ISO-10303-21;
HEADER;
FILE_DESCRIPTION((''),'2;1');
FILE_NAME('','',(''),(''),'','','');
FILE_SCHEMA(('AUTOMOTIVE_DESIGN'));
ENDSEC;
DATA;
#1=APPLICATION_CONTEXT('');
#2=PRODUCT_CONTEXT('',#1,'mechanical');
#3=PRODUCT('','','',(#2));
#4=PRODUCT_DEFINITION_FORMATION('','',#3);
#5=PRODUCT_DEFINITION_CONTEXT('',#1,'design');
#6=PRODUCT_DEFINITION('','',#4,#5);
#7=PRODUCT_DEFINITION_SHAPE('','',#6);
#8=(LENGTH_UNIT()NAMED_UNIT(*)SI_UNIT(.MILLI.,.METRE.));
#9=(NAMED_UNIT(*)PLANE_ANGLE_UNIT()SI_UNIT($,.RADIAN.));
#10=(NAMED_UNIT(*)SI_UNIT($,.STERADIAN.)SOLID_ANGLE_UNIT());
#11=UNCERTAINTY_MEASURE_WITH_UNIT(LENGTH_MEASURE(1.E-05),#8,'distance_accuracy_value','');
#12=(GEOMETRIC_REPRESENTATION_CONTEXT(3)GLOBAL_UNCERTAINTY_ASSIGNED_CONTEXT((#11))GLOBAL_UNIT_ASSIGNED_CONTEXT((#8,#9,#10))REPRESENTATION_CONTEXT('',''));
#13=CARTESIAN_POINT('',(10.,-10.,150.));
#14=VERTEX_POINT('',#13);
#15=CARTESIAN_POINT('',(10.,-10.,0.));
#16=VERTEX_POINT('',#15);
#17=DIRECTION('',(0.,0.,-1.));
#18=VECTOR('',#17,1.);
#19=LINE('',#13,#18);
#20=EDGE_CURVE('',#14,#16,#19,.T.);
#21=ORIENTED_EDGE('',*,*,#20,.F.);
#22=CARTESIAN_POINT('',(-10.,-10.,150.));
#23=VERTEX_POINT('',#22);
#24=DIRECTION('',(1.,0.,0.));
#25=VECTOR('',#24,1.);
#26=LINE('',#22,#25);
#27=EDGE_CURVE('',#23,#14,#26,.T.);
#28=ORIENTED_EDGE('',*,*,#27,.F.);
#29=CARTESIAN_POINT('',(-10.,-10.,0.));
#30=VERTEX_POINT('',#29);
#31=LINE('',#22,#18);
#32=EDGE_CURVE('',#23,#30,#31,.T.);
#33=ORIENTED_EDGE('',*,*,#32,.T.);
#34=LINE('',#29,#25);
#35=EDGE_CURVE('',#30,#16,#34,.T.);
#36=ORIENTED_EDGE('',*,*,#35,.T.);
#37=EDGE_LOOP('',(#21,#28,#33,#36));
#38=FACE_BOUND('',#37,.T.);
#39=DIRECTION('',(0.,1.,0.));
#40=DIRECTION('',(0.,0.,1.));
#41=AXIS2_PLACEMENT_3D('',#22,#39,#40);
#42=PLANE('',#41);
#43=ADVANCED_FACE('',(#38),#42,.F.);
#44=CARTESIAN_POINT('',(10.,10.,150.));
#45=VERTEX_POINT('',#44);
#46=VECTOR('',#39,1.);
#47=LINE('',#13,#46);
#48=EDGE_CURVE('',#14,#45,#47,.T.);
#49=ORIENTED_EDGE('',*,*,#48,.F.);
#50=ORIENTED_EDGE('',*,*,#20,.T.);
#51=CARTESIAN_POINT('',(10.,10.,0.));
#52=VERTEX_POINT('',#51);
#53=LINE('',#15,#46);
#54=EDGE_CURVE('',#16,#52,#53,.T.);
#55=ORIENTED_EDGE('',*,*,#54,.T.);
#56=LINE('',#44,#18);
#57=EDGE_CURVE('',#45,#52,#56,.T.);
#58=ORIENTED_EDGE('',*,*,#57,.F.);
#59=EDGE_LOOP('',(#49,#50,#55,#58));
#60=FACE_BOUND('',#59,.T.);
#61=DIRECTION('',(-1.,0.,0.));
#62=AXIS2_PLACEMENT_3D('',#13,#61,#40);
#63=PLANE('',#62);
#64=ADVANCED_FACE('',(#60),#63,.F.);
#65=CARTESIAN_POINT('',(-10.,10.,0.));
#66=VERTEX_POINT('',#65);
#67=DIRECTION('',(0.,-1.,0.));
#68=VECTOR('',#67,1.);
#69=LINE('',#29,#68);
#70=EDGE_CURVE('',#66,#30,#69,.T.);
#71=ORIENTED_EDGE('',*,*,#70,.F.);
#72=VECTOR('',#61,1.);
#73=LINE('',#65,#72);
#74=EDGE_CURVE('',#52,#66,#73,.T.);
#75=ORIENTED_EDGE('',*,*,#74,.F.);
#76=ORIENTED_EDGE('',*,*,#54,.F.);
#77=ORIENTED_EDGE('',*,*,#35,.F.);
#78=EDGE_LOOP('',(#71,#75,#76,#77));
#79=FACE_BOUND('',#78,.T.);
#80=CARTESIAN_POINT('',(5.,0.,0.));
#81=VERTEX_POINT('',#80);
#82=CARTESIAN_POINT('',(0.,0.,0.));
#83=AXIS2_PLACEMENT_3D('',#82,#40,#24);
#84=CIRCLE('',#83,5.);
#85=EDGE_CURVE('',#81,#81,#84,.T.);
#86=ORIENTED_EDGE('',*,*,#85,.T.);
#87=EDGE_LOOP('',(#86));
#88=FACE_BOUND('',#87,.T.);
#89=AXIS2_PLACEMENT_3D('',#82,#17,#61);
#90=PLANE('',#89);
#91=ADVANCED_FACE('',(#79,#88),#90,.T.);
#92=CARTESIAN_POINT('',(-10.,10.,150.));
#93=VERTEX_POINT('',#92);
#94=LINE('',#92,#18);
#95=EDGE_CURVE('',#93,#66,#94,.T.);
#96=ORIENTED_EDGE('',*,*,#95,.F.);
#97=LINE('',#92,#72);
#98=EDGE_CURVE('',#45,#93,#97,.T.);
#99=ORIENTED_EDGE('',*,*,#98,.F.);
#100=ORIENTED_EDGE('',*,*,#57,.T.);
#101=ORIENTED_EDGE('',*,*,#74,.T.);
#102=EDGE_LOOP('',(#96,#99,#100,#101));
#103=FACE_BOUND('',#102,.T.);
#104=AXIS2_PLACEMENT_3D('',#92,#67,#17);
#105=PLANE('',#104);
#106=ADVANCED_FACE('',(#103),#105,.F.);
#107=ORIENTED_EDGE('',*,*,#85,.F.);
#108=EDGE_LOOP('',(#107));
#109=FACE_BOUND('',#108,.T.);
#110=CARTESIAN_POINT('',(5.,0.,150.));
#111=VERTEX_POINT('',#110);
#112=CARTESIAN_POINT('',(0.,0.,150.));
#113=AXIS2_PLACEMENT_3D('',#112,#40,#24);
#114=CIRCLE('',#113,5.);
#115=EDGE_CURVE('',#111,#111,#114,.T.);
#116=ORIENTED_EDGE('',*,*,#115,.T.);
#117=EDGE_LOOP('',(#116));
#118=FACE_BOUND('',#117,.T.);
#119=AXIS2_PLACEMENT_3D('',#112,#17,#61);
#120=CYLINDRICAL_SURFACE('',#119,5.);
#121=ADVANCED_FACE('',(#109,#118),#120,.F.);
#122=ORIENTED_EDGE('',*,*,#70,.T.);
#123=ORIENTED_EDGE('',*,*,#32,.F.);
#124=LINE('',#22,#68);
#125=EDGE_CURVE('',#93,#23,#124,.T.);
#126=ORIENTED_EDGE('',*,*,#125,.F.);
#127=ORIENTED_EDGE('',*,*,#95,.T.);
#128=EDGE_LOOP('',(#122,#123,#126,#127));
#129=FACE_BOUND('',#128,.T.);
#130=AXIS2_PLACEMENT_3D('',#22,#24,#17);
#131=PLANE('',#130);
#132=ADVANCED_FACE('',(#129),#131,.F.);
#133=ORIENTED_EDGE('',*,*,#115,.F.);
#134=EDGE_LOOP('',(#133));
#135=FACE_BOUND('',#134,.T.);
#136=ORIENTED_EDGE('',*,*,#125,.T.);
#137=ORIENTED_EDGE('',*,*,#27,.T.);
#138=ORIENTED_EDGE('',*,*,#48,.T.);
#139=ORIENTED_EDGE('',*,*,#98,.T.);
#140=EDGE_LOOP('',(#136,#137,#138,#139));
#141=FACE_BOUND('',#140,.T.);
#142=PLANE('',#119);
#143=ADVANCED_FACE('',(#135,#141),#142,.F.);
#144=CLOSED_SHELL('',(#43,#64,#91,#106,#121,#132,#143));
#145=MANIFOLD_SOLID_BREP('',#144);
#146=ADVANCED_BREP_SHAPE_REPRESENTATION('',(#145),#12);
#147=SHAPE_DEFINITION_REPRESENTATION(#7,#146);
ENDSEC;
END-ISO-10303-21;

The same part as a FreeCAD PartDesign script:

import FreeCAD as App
import Part
import Sketcher

V = App.Vector
Q = App.Units.Quantity


def add_polygon(sketch, points):
    """Adds a closed chain of lines whose ends are joined by coincident constraints."""
    first, n = sketch.GeometryCount, len(points)
    for a, b in zip(points, points[1:] + points[:1]):
        sketch.addGeometry(Part.LineSegment(App.Vector(*a, 0), App.Vector(*b, 0)), False)
    for i in range(n):
        sketch.addConstraint(Sketcher.Constraint("Coincident", first + i, 2, first + (i + 1) % n, 1))

doc = App.newDocument("Part")
body = doc.addObject("PartDesign::Body", "Body")

sketch1 = body.newObject("Sketcher::SketchObject", "Sketch")
sketch1.AttachmentSupport = (doc.getObject("XY_Plane"), [""])
sketch1.MapMode = "FlatFace"
add_polygon(sketch1, [(-10, 10), (-10, -10), (10, -10), (10, 10)])
sketch1.addGeometry(Part.Circle(V(0, 0, 0), V(0, 0, 1), 5), False)
sketch1.addConstraint([
    Sketcher.Constraint("Vertical", 0),
    Sketcher.Constraint("Horizontal", 1),
    Sketcher.Constraint("Vertical", 2),
    Sketcher.Constraint("Horizontal", 3),
    Sketcher.Constraint("Coincident", 4, 3, -1, 1),
    Sketcher.Constraint("Symmetric", 0, 2, 2, 2, -1, 1),
    Sketcher.Constraint("Equal", 3, 0),
    Sketcher.Constraint("Diameter", 4, Q("10 mm")),
    Sketcher.Constraint("DistanceX", 1, 1, 1, 2, Q("20 mm")),
])
pad1 = body.newObject("PartDesign::Pad", "Pad")
pad1.Profile = sketch1
pad1.Length = 150

doc.recompute()
